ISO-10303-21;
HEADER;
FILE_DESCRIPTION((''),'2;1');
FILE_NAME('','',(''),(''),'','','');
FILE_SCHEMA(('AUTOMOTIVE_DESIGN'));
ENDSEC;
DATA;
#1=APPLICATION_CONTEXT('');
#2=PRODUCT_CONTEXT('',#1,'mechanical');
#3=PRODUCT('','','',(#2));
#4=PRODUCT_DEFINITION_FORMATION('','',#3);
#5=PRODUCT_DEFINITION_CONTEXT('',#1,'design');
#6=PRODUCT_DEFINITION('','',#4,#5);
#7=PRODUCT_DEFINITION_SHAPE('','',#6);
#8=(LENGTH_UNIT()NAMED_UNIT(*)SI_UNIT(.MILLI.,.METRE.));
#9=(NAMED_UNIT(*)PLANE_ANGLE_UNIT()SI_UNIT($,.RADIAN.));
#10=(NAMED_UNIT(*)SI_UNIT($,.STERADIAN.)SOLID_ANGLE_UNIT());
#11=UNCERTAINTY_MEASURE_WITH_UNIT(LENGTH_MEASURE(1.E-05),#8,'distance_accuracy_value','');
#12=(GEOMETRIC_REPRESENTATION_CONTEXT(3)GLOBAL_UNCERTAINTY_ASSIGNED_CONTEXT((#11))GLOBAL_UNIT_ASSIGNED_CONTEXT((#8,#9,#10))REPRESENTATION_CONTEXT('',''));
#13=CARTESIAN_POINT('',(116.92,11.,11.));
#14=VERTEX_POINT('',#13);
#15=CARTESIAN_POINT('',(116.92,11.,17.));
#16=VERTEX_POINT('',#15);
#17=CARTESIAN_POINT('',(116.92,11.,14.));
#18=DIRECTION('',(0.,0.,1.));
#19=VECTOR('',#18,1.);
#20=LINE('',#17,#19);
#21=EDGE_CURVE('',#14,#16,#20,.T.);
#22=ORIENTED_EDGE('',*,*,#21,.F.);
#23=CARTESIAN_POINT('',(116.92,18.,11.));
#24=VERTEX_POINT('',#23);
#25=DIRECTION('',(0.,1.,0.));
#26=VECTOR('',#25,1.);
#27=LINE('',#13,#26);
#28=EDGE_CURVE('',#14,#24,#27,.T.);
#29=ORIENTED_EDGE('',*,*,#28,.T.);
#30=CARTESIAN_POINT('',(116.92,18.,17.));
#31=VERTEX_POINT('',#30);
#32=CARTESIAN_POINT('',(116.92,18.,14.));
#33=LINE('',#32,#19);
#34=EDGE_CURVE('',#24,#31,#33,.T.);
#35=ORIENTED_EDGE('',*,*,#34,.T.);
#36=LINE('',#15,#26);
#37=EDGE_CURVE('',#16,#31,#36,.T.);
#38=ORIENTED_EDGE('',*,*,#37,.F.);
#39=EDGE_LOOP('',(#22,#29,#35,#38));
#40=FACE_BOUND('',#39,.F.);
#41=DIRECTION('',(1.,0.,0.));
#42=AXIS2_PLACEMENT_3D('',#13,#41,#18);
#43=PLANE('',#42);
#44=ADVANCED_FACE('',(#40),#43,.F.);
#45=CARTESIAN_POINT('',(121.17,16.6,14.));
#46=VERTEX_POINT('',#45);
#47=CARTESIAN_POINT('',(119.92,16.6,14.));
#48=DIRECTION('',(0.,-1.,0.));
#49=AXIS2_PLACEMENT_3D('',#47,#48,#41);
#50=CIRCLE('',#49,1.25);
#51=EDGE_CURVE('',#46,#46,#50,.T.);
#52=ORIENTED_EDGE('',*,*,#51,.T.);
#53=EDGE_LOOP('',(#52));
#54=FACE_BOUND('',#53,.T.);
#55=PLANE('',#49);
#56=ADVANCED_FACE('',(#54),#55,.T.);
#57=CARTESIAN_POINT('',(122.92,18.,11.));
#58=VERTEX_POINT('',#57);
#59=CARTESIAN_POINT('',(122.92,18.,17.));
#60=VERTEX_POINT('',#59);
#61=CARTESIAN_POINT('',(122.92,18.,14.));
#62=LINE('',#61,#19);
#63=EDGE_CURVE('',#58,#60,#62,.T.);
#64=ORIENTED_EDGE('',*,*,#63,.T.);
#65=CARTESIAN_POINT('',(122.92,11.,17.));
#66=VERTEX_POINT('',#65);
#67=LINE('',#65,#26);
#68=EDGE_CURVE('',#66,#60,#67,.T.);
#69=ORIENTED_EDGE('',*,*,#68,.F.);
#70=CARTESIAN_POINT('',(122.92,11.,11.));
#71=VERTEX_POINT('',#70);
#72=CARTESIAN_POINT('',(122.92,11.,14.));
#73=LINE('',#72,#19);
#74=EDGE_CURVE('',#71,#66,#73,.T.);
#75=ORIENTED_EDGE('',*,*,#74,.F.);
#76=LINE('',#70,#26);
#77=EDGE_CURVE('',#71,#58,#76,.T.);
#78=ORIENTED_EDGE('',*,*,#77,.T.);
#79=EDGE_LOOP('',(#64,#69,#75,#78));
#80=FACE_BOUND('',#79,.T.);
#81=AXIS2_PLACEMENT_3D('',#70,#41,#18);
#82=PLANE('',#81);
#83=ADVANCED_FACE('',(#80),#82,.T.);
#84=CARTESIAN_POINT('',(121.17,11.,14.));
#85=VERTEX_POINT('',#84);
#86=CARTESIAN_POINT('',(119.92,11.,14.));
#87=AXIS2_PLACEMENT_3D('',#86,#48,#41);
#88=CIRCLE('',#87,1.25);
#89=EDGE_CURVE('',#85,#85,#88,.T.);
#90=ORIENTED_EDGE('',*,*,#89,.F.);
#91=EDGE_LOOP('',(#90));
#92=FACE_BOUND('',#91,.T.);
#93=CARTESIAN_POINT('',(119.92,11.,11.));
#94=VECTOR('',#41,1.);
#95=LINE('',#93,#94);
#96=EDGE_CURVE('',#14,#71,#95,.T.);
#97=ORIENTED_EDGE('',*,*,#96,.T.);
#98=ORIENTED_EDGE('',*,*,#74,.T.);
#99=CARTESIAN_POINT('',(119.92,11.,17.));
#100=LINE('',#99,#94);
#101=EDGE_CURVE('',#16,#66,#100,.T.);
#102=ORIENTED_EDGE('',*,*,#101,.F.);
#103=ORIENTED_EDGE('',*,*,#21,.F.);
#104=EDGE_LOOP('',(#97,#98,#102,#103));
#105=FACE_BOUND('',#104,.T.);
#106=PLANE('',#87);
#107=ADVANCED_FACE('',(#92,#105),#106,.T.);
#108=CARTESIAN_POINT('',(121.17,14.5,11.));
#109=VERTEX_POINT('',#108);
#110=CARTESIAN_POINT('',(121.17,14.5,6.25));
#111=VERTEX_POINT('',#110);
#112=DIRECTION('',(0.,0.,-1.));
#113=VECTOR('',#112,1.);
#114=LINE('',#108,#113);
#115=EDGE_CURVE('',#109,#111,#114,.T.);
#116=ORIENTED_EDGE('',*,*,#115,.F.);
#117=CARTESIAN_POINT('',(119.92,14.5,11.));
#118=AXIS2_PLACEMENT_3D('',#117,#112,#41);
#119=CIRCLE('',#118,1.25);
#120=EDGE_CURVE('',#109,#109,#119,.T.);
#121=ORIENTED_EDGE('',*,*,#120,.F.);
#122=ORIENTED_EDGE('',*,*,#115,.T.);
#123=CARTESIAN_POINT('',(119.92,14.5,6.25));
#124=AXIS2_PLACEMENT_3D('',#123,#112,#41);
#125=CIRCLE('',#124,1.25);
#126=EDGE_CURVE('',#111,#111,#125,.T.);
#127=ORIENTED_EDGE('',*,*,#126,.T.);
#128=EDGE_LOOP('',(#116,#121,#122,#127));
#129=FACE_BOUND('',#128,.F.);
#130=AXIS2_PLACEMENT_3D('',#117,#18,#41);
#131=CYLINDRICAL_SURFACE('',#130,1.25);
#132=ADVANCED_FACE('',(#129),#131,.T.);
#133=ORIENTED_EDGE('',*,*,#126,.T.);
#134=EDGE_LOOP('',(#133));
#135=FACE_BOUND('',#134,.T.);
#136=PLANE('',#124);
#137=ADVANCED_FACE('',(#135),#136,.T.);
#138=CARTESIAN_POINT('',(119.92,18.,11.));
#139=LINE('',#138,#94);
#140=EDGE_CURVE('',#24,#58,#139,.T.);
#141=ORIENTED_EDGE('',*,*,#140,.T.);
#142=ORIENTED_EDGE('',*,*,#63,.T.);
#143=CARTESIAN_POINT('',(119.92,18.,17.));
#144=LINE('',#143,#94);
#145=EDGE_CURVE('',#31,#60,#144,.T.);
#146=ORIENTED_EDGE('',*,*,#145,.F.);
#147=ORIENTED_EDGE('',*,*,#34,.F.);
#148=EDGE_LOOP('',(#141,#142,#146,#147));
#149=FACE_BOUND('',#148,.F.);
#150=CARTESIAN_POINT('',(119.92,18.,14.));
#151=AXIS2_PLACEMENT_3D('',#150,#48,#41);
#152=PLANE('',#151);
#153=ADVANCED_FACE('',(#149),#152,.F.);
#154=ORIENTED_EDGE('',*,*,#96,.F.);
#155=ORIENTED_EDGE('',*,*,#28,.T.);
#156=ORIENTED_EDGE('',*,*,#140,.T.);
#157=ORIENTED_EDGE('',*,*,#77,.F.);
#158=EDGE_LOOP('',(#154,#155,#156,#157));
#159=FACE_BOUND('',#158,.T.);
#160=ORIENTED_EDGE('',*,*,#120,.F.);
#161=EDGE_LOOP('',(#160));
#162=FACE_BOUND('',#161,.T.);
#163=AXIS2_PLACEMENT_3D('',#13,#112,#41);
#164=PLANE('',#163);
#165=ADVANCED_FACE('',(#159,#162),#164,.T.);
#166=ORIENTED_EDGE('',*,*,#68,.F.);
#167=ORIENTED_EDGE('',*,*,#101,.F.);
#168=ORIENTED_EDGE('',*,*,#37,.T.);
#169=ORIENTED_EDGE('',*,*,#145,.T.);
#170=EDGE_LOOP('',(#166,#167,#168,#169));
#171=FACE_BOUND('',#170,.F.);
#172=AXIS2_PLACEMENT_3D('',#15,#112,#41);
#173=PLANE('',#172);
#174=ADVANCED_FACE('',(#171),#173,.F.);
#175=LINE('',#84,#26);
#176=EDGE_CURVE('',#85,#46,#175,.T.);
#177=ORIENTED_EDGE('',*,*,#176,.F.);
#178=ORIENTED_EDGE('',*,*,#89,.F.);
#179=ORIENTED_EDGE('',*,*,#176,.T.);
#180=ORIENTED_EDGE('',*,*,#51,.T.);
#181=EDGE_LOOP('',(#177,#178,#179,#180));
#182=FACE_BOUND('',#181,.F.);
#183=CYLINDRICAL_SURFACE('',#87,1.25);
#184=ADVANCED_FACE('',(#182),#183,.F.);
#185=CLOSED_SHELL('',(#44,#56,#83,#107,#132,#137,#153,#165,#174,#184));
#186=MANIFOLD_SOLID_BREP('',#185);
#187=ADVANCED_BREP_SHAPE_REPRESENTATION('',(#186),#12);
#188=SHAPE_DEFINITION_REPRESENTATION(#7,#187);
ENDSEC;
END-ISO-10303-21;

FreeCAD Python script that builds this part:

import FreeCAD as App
import Part
import Sketcher

V = App.Vector
Q = App.Units.Quantity


def add_polygon(sketch, points):
    """Adds a closed chain of lines whose ends are joined by coincident constraints."""
    first, n = sketch.GeometryCount, len(points)
    for a, b in zip(points, points[1:] + points[:1]):
        sketch.addGeometry(Part.LineSegment(App.Vector(*a, 0), App.Vector(*b, 0)), False)
    for i in range(n):
        sketch.addConstraint(Sketcher.Constraint("Coincident", first + i, 2, first + (i + 1) % n, 1))

doc = App.newDocument("Part")
body = doc.addObject("PartDesign::Body", "Body")

# Sketch on XZ plane
sketch1 = doc.addObject("Sketcher::SketchObject", "Sketch")
body.addObject(sketch1)
sketch1.AttachmentSupport = (doc.XZ_Plane, [""])
sketch1.MapMode = "FlatFace"
add_polygon(sketch1, [(117, 17), (117, 11), (123, 11), (123, 17)])  # lines 0-3
sketch1.addConstraint(Sketcher.Constraint("Vertical", 0))
sketch1.addConstraint(Sketcher.Constraint("Horizontal", 1))
sketch1.addConstraint(Sketcher.Constraint("Vertical", 2))
sketch1.addConstraint(Sketcher.Constraint("Horizontal", 3))
sketch1.addConstraint(Sketcher.Constraint("Equal", 3, 0))
sketch1.addConstraint(Sketcher.Constraint("DistanceX", 1, 1, 1, 2, Q("6 mm")))
sketch1.addConstraint(Sketcher.Constraint("DistanceY", -1, 1, 0, 2, Q("11 mm")))
sketch1.addConstraint(Sketcher.Constraint("DistanceX", -1, 1, 0, 2, Q("116.92 mm")))
pad1 = doc.addObject("PartDesign::Pad", "Pad")
body.addObject(pad1)
pad1.Profile = sketch1
pad1.Length = 7
pad1.Reversed = True

# Sketch on XZ plane
sketch2 = doc.addObject("Sketcher::SketchObject", "Sketch001")
body.addObject(sketch2)
sketch2.AttachmentSupport = (doc.XZ_Plane, [""])
sketch2.MapMode = "FlatFace"
sketch2.addGeometry(Part.Circle(V(119.9, 14, 0), V(0, 0, 1), 1.2), False)
sketch2.addConstraint(Sketcher.Constraint("Diameter", 0, Q("2.5 mm")))
sketch2.addConstraint(Sketcher.Constraint("DistanceY", -1, 1, 0, 3, Q("14 mm")))
sketch2.addConstraint(Sketcher.Constraint("DistanceX", -1, 1, 0, 3, Q("119.92 mm")))
pocket1 = doc.addObject("PartDesign::Pocket", "Pocket")
body.addObject(pocket1)
pocket1.Profile = sketch2
pocket1.Length = 5.6

# Sketch on XY plane
sketch3 = doc.addObject("Sketcher::SketchObject", "Sketch002")
body.addObject(sketch3)
sketch3.AttachmentSupport = (doc.XY_Plane, [""])
sketch3.MapMode = "FlatFace"
sketch3.AttachmentOffset = App.Placement(V(0, 0, 11), App.Rotation())
sketch3.addGeometry(Part.Circle(V(119.9, 3.5, 0), V(0, 0, 1), 1.2), False)
sketch3.addConstraint(Sketcher.Constraint("Diameter", 0, Q("2.5 mm")))
sketch3.addConstraint(Sketcher.Constraint("DistanceY", -1, 1, 0, 3, Q("3.5 mm")))
sketch3.addConstraint(Sketcher.Constraint("DistanceX", -1, 1, 0, 3, Q("119.92 mm")))
pad2 = doc.addObject("PartDesign::Pad", "Pad001")
body.addObject(pad2)
pad2.Profile = sketch3
pad2.Length = 4.75
pad2.Reversed = True
body2 = doc.addObject("PartDesign::Body", "Body001")
doc.recompute()

body.Placement = App.Placement(V(0, 11, 0), App.Rotation(V(0, 0, 1), 0))
boolean = doc.addObject("PartDesign::Boolean", "Boolean")
body2.addObject(boolean)
boolean.Type = "Fuse"
boolean.addObjects([body])

doc.recompute()
